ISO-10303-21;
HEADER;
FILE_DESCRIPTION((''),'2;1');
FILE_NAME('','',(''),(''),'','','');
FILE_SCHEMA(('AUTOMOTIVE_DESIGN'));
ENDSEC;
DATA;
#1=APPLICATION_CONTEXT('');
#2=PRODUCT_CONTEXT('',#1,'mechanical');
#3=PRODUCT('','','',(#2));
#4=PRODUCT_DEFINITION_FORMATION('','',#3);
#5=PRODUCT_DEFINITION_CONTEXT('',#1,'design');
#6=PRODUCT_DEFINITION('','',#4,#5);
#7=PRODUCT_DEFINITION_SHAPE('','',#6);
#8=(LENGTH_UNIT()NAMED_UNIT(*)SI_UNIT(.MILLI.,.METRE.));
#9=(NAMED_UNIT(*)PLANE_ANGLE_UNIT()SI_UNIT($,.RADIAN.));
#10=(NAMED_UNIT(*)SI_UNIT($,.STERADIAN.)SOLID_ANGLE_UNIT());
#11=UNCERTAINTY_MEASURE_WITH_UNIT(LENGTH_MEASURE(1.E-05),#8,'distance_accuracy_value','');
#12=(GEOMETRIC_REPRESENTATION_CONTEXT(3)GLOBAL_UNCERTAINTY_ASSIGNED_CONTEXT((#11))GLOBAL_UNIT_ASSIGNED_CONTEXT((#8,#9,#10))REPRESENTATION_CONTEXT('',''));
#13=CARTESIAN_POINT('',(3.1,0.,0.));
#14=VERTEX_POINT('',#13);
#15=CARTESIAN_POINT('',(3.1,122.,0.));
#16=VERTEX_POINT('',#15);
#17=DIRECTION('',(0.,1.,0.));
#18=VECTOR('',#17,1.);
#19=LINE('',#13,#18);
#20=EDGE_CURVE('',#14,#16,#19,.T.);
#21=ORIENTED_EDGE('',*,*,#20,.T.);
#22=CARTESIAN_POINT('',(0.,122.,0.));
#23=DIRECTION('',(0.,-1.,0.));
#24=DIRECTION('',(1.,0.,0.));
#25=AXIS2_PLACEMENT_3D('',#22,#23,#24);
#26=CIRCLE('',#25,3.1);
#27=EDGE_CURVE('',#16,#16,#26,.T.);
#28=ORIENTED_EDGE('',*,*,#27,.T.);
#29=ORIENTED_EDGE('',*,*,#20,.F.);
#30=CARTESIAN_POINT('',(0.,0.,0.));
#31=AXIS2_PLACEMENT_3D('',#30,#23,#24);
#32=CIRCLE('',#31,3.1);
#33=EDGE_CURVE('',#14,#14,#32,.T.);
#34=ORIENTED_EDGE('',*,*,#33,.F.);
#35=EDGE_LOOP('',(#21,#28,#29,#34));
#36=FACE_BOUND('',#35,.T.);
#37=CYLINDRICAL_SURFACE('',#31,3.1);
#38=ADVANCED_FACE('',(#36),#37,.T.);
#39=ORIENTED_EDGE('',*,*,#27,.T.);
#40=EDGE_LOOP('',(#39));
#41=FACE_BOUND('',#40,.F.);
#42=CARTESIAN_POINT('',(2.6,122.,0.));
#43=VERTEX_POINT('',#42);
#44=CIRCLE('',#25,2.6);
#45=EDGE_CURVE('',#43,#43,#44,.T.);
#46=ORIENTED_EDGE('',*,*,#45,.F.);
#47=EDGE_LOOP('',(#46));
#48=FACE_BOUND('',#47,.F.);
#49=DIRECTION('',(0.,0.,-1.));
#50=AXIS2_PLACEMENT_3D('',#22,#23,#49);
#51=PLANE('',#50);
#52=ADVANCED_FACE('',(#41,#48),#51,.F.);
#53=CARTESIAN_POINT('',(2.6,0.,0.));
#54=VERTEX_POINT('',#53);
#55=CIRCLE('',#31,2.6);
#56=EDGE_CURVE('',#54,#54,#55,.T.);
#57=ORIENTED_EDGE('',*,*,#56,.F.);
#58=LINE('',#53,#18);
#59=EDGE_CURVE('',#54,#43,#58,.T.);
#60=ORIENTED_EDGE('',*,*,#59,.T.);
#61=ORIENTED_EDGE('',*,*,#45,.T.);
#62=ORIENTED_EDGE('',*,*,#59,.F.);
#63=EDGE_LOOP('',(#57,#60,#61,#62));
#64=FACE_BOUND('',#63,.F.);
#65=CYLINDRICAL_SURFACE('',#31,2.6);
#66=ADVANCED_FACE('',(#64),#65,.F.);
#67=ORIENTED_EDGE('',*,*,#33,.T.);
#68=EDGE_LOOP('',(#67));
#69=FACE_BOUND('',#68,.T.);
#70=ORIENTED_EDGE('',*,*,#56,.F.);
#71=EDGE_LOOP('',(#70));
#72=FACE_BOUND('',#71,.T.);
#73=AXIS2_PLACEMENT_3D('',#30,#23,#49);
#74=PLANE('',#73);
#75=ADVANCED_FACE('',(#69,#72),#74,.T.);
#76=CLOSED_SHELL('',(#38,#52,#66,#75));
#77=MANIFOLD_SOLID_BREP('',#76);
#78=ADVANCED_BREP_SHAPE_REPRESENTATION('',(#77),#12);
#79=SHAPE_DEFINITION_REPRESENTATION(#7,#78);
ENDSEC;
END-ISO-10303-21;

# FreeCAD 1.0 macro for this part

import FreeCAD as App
import Part
import Sketcher

V = App.Vector
Q = App.Units.Quantity

doc = App.newDocument("Part")
body = doc.addObject("PartDesign::Body", "Body")

sketch1 = body.newObject("Sketcher::SketchObject", "Sketch")
sketch1.AttachmentSupport = (doc.getObject("XZ_Plane"), [""])
sketch1.MapMode = "FlatFace"
sketch1.addGeometry(Part.Circle(V(0, 0, 0), V(0, 0, 1), 3.1), False)
sketch1.addGeometry(Part.Circle(V(0, 0, 0), V(0, 0, 1), 2.6), False)
sketch1.addConstraint(Sketcher.Constraint("Coincident", 0, 3, -1, 1))
sketch1.addConstraint(Sketcher.Constraint("Coincident", 1, 3, -1, 1))
sketch1.addConstraint(Sketcher.Constraint("Diameter", 0, Q("6.2 mm")))
sketch1.addConstraint(Sketcher.Constraint("Diameter", 1, Q("5.2 mm")))
pad1 = body.newObject("PartDesign::Pad", "Pad")
pad1.Profile = sketch1
pad1.Length = 122
pad1.Reversed = True

doc.recompute()
